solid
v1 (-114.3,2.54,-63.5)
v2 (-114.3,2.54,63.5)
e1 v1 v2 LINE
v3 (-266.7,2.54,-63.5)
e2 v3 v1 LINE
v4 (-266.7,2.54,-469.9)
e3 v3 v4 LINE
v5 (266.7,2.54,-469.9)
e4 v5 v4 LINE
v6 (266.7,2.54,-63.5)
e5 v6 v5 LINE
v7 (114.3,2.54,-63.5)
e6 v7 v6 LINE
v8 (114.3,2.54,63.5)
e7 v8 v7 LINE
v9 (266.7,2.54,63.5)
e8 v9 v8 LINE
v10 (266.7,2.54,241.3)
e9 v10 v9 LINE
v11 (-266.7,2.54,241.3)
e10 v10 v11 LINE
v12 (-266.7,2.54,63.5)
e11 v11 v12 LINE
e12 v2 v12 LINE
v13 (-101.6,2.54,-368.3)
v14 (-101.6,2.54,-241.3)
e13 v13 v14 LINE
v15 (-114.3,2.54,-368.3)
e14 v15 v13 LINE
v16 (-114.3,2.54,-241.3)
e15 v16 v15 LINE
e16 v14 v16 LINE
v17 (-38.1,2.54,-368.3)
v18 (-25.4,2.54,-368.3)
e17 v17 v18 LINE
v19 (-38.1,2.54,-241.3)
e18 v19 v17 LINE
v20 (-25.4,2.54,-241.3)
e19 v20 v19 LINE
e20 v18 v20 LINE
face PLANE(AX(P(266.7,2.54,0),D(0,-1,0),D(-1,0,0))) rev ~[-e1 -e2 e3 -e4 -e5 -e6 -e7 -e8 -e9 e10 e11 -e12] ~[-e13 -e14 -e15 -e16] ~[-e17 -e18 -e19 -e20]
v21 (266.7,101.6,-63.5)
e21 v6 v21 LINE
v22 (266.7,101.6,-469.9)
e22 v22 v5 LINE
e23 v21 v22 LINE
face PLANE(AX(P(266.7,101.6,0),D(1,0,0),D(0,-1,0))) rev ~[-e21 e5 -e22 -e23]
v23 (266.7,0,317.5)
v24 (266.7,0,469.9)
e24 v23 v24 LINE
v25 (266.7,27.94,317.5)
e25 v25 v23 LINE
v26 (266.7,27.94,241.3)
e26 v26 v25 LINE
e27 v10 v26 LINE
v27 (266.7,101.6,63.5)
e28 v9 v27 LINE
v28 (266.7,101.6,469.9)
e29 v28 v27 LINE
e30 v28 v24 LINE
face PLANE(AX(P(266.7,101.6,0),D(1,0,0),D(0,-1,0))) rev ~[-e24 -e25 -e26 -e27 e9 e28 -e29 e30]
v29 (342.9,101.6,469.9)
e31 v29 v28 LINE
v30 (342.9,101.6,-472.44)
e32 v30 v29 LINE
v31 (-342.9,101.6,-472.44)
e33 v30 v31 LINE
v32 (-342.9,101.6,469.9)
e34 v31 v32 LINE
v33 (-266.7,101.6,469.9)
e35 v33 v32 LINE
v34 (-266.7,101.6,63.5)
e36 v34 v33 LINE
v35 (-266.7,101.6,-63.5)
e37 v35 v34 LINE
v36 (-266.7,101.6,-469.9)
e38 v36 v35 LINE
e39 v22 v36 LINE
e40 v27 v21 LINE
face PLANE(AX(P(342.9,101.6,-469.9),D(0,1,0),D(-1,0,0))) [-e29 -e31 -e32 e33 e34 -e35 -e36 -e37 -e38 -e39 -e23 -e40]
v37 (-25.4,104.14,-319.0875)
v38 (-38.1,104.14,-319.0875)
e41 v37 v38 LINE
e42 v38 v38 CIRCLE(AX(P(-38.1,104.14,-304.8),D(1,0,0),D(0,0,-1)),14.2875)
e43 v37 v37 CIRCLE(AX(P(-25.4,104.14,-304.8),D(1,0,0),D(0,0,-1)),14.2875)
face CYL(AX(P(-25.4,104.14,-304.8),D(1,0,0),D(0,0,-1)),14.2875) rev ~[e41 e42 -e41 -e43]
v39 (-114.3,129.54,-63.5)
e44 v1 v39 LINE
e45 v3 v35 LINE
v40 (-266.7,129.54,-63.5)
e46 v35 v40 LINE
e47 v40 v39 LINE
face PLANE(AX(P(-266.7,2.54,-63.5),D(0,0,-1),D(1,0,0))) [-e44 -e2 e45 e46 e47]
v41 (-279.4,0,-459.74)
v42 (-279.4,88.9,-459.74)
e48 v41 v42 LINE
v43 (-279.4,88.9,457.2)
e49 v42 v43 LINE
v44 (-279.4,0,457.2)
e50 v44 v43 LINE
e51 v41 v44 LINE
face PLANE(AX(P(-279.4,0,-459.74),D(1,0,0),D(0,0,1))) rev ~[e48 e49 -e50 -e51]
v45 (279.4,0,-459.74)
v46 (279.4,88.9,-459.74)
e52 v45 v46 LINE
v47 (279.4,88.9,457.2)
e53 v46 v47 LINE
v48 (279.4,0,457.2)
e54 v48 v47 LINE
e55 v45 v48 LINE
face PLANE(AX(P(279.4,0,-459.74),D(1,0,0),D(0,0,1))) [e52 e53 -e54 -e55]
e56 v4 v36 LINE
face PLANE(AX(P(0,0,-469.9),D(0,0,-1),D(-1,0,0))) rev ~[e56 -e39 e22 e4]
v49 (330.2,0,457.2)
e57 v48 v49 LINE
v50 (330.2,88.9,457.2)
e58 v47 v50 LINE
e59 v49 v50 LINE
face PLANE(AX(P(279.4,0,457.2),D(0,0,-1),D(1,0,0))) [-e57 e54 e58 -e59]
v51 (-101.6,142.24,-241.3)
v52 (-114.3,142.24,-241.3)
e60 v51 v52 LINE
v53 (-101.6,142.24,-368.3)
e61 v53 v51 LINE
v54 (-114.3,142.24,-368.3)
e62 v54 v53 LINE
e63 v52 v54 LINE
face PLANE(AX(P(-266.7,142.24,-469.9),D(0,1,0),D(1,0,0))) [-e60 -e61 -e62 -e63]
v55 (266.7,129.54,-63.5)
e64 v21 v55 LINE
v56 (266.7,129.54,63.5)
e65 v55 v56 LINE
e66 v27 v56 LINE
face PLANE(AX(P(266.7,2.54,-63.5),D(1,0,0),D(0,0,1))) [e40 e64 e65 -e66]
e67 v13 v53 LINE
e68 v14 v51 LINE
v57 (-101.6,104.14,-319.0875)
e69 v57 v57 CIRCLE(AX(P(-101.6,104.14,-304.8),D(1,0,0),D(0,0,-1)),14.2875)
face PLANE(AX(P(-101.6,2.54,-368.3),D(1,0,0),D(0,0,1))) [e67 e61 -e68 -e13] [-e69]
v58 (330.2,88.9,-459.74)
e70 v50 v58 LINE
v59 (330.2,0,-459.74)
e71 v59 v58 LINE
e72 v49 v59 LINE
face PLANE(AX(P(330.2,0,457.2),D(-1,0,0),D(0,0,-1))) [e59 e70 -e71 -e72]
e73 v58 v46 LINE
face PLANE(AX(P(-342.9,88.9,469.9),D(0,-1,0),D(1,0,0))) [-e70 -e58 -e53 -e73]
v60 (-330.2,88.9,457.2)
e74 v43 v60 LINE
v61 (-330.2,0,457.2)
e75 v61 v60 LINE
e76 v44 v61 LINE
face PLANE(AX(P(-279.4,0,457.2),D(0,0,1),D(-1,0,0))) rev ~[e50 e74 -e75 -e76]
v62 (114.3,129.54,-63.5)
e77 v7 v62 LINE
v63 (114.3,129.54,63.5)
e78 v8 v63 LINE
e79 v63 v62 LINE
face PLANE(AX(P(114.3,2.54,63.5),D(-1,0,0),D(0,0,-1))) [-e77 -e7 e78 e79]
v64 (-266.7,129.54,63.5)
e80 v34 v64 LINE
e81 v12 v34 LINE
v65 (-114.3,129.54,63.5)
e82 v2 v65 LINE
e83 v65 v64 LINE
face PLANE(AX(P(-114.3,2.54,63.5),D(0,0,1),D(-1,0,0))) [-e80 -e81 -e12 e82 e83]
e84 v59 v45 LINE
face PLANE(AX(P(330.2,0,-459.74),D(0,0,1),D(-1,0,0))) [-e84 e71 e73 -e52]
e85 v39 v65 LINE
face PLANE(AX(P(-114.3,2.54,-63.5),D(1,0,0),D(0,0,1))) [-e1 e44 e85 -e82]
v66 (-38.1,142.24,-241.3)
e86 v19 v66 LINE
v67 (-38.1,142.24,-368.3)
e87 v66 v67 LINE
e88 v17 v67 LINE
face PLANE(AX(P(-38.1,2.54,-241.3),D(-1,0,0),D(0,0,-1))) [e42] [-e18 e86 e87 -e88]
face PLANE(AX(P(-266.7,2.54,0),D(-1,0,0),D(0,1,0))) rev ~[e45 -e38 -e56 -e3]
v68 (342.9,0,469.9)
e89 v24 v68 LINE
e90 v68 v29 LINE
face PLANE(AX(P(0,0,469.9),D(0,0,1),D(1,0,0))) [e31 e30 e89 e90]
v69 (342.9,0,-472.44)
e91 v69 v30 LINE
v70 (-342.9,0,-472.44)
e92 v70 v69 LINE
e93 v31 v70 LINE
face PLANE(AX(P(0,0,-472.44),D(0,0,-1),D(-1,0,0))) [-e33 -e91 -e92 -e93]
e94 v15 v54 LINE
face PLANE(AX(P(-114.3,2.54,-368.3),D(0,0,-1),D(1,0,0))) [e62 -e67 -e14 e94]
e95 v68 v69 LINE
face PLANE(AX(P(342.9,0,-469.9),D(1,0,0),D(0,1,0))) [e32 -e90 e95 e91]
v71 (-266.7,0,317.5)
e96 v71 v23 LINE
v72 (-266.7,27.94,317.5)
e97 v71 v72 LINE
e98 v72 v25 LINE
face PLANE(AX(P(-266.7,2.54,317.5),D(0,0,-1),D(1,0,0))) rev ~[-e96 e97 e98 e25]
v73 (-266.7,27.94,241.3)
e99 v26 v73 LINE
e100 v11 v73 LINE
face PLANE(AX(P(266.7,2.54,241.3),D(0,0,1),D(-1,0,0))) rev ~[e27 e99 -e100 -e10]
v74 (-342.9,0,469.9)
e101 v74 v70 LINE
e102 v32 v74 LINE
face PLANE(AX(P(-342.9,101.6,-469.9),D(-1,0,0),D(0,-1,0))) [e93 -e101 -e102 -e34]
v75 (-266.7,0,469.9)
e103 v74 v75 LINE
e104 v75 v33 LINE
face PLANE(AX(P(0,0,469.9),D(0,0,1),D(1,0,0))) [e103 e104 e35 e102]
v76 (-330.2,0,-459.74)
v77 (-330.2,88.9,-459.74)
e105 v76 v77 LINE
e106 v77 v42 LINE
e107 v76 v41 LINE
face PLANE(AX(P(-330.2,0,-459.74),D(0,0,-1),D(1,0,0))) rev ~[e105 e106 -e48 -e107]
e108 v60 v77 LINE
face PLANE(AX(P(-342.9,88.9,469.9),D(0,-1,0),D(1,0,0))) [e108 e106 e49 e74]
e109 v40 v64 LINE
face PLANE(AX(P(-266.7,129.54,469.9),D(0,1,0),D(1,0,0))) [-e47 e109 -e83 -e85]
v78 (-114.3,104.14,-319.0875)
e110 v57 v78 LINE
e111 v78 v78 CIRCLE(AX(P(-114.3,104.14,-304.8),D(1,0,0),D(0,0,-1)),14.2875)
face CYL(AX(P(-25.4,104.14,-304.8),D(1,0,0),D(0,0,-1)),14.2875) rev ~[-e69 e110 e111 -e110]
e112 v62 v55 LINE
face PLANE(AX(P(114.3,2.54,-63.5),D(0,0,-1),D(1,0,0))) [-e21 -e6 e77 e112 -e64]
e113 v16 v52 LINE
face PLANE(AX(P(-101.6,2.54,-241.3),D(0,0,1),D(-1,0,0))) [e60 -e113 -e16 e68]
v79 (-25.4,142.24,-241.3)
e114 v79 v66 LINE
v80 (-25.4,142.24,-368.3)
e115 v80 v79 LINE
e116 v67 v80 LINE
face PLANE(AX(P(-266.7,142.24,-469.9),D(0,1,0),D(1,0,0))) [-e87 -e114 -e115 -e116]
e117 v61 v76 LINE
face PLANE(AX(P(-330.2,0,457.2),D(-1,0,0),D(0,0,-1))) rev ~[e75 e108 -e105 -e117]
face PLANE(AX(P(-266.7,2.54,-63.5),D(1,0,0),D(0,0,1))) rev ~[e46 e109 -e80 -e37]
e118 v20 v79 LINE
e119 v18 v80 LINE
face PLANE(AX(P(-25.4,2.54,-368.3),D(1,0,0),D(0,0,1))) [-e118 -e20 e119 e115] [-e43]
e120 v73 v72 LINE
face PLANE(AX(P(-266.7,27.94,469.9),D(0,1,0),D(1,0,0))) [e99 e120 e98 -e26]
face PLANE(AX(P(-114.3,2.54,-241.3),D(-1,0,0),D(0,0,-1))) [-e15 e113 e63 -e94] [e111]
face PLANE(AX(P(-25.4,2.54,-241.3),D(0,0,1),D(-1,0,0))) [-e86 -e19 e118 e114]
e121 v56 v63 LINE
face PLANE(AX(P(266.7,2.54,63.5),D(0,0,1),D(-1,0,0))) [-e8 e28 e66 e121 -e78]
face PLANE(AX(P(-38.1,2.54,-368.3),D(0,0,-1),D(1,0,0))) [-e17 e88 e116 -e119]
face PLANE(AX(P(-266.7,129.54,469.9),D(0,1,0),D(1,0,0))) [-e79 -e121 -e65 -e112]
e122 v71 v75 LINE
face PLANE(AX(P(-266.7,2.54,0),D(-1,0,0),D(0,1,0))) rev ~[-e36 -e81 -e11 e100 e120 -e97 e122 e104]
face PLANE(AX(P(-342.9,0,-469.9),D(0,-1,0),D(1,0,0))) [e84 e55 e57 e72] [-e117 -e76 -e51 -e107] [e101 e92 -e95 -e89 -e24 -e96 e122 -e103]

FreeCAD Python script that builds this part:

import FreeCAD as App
import Part
import Sketcher
Q = App.Units.Quantity


def add_polygon(sketch, points):
    """Adds a closed chain of lines whose ends are joined by coincident constraints."""
    first, n = sketch.GeometryCount, len(points)
    for a, b in zip(points, points[1:] + points[:1]):
        sketch.addGeometry(Part.LineSegment(App.Vector(*a, 0), App.Vector(*b, 0)), False)
    for i in range(n):
        sketch.addConstraint(Sketcher.Constraint("Coincident", first + i, 2, first + (i + 1) % n, 1))

doc = App.newDocument("Part")
body = doc.addObject("PartDesign::Body", "Body")

sketch1 = body.newObject("Sketcher::SketchObject", "Sketch")
sketch1.AttachmentSupport = (doc.getObject("XY_Plane"), [""])
sketch1.MapMode = "FlatFace"
add_polygon(sketch1, [(-267, 3), (-267, 102), (-343, 102), (-343, 0), (343, 0), (343, 102), (267, 102), (267, 3)])
sketch1.addConstraint(Sketcher.Constraint("Vertical", 0))
sketch1.addConstraint(Sketcher.Constraint("Horizontal", 1))
sketch1.addConstraint(Sketcher.Constraint("Vertical", 2))
sketch1.addConstraint(Sketcher.Constraint("Horizontal", 3))
sketch1.addConstraint(Sketcher.Constraint("Vertical", 4))
sketch1.addConstraint(Sketcher.Constraint("Horizontal", 5))
sketch1.addConstraint(Sketcher.Constraint("Vertical", 6))
sketch1.addConstraint(Sketcher.Constraint("Horizontal", 7))
sketch1.addConstraint(Sketcher.Constraint("Symmetric", 2, 2, 3, 2, -1, 1))
sketch1.addConstraint(Sketcher.Constraint("Symmetric", 0, 2, 5, 2, -2))
sketch1.addConstraint(Sketcher.Constraint("DistanceX", 1, 2, 1, 1, Q("3 in")))
sketch1.addConstraint(Sketcher.Constraint("DistanceX", 3, 1, 3, 2, Q("27 in")))
sketch1.addConstraint(Sketcher.Constraint("DistanceY", 2, 2, 2, 1, Q("4 in")))
sketch1.addConstraint(Sketcher.Constraint("DistanceY", -1, 1, 6, 2, Q("0.1 in")))
pad1 = body.newObject("PartDesign::Pad", "Pad")
pad1.Profile = sketch1
pad1.Length = Q("37 in")
pad1.Midplane = True

sketch2 = body.newObject("Sketcher::SketchObject", "Sketch001")
sketch2.AttachmentSupport = (doc.getObject("XY_Plane"), [""])
sketch2.MapMode = "FlatFace"
sketch2.AttachmentOffset = App.Placement(App.Vector(0, 0, -18.5 * 25.4), App.Rotation())
add_polygon(sketch2, [(343, 102), (343, 0), (-343, 0), (-343, 102)])
sketch2.addConstraint(Sketcher.Constraint("Vertical", 0))
sketch2.addConstraint(Sketcher.Constraint("Horizontal", 1))
sketch2.addConstraint(Sketcher.Constraint("Vertical", 2))
sketch2.addConstraint(Sketcher.Constraint("Horizontal", 3))
sketch2.addConstraint(Sketcher.Constraint("Symmetric", 0, 2, 1, 2, -1, 1))
sketch2.addConstraint(Sketcher.Constraint("DistanceX", 1, 2, 1, 1, Q("27 in")))
sketch2.addConstraint(Sketcher.Constraint("DistanceY", 0, 2, 0, 1, Q("4 in")))
pad2 = body.newObject("PartDesign::Pad", "Pad001")
pad2.Profile = sketch2
pad2.Length = Q("0.1 in")
pad2.Reversed = True

sketch3 = body.newObject("Sketcher::SketchObject", "Sketch002")
sketch3.AttachmentSupport = (doc.getObject("XZ_Plane"), [""])
sketch3.MapMode = "FlatFace"
sketch3.AttachmentOffset = App.Placement(App.Vector(0, 0, -0.1 * 25.4), App.Rotation())
add_polygon(sketch3, [(-267, 318), (-267, 470), (267, 470), (267, 318)])
sketch3.addConstraint(Sketcher.Constraint("Vertical", 0))
sketch3.addConstraint(Sketcher.Constraint("Horizontal", 1))
sketch3.addConstraint(Sketcher.Constraint("Vertical", 2))
sketch3.addConstraint(Sketcher.Constraint("Horizontal", 3))
sketch3.addConstraint(Sketcher.Constraint("DistanceY", 0, 1, 0, 2, Q("6 in")))
sketch3.addConstraint(Sketcher.Constraint("DistanceX", 1, 1, 1, 2, Q("21 in")))
sketch3.addConstraint(Sketcher.Constraint("DistanceX", 0, 2, -1, 1, Q("10.5 in")))
sketch3.addConstraint(Sketcher.Constraint("DistanceY", -1, 1, 0, 2, Q("18.5 in")))
pocket1 = body.newObject("PartDesign::Pocket", "Pocket")
pocket1.Profile = sketch3
pocket1.Type = "UpToFirst"
pocket1.Reversed = True

sketch4 = body.newObject("Sketcher::SketchObject", "Sketch003")
sketch4.AttachmentSupport = (doc.getObject("XZ_Plane"), [""])
sketch4.MapMode = "FlatFace"
sketch4.AttachmentOffset = App.Placement(App.Vector(0, 0, -0.1 * 25.4), App.Rotation())
add_polygon(sketch4, [(-267, 241), (-267, 318), (267, 318), (267, 241)])
sketch4.addConstraint(Sketcher.Constraint("Vertical", 0))
sketch4.addConstraint(Sketcher.Constraint("Horizontal", 1))
sketch4.addConstraint(Sketcher.Constraint("Vertical", 2))
sketch4.addConstraint(Sketcher.Constraint("Horizontal", 3))
sketch4.addConstraint(Sketcher.Constraint("DistanceY", 0, 1, 0, 2, Q("3 in")))
sketch4.addConstraint(Sketcher.Constraint("DistanceX", 1, 1, 1, 2, Q("21 in")))
sketch4.addConstraint(Sketcher.Constraint("DistanceX", 0, 2, -1, 1, Q("10.5 in")))
sketch4.addConstraint(Sketcher.Constraint("DistanceY", -1, 1, 0, 2, Q("12.5 in")))
pad3 = body.newObject("PartDesign::Pad", "Pad002")
pad3.Profile = sketch4
pad3.Length = Q("1 in")
pad3.Reversed = True

sketch5 = body.newObject("Sketcher::SketchObject", "Sketch004")
sketch5.AttachmentSupport = (doc.getObject("XZ_Plane"), [""])
sketch5.MapMode = "FlatFace"
sketch5.AttachmentOffset = App.Placement(App.Vector(0, 0, -0.1 * 25.4), App.Rotation())
add_polygon(sketch5, [(-267, -64), (-267, 64), (-114, 64), (-114, -64)])
add_polygon(sketch5, [(114, 64), (267, 64), (267, -64), (114, -64)])
sketch5.addConstraint(Sketcher.Constraint("Vertical", 0))
sketch5.addConstraint(Sketcher.Constraint("Horizontal", 1))
sketch5.addConstraint(Sketcher.Constraint("Vertical", 2))
sketch5.addConstraint(Sketcher.Constraint("Horizontal", 3))
sketch5.addConstraint(Sketcher.Constraint("Horizontal", 4))
sketch5.addConstraint(Sketcher.Constraint("Vertical", 5))
sketch5.addConstraint(Sketcher.Constraint("Horizontal", 6))
sketch5.addConstraint(Sketcher.Constraint("Vertical", 7))
sketch5.addConstraint(Sketcher.Constraint("Symmetric", 3, 2, 4, 2, -1, 1))
sketch5.addConstraint(Sketcher.Constraint("Symmetric", 1, 2, 6, 2, -1, 1))
sketch5.addConstraint(Sketcher.Constraint("Horizontal", 1, 2, 4, 2))
sketch5.addConstraint(Sketcher.Constraint("DistanceX", 1, 1, 1, 2, Q("6 in")))
sketch5.addConstraint(Sketcher.Constraint("DistanceY", 0, 1, 0, 2, Q("5 in")))
sketch5.addConstraint(Sketcher.Constraint("DistanceX", 1, 2, 4, 2, Q("15 in")))
pad4 = body.newObject("PartDesign::Pad", "Pad003")
pad4.Profile = sketch5
pad4.Length = Q("5 in")
pad4.Reversed = True

sketch6 = body.newObject("Sketcher::SketchObject", "Sketch005")
sketch6.AttachmentSupport = (doc.getObject("XZ_Plane"), [""])
sketch6.MapMode = "FlatFace"
add_polygon(sketch6, [(-330, 457), (-330, -460), (-279, -460), (-279, 457)])
add_polygon(sketch6, [(279, -460), (330, -460), (330, 457), (279, 457)])
sketch6.addConstraint(Sketcher.Constraint("Vertical", 0))
sketch6.addConstraint(Sketcher.Constraint("Horizontal", 1))
sketch6.addConstraint(Sketcher.Constraint("Vertical", 2))
sketch6.addConstraint(Sketcher.Constraint("Horizontal", 3))
sketch6.addConstraint(Sketcher.Constraint("Horizontal", 4))
sketch6.addConstraint(Sketcher.Constraint("Vertical", 5))
sketch6.addConstraint(Sketcher.Constraint("Horizontal", 6))
sketch6.addConstraint(Sketcher.Constraint("Vertical", 7))
sketch6.addConstraint(Sketcher.Constraint("Symmetric", 0, 2, 4, 2, -2))
sketch6.addConstraint(Sketcher.Constraint("Symmetric", 2, 2, 6, 2, -2))
sketch6.addConstraint(Sketcher.Constraint("DistanceX", 1, 1, 1, 2, Q("2 in")))
sketch6.addConstraint(Sketcher.Constraint("DistanceY", 0, 2, 0, 1, Q("36.1 in")))
sketch6.addConstraint(Sketcher.Constraint("DistanceX", 0, 2, -1, 1, Q("13 in")))
sketch6.addConstraint(Sketcher.Constraint("DistanceY", -1, 1, 2, 2, Q("18 in")))
pocket2 = body.newObject("PartDesign::Pocket", "Pocket001")
pocket2.Profile = sketch6
pocket2.Length = Q("3.5 in")

sketch7 = body.newObject("Sketcher::SketchObject", "Sketch006")
sketch7.AttachmentSupport = (doc.getObject("XZ_Plane"), [""])
sketch7.MapMode = "FlatFace"
sketch7.AttachmentOffset = App.Placement(App.Vector(0, 0, -0.1 * 25.4), App.Rotation())
add_polygon(sketch7, [(-102, -368), (-114, -368), (-114, -241), (-102, -241)])
add_polygon(sketch7, [(-25, -368), (-38, -368), (-38, -241), (-25, -241)])
sketch7.addConstraint(Sketcher.Constraint("Horizontal", 0))
sketch7.addConstraint(Sketcher.Constraint("Vertical", 1))
sketch7.addConstraint(Sketcher.Constraint("Horizontal", 2))
sketch7.addConstraint(Sketcher.Constraint("Vertical", 3))
sketch7.addConstraint(Sketcher.Constraint("Horizontal", 4))
sketch7.addConstraint(Sketcher.Constraint("Vertical", 5))
sketch7.addConstraint(Sketcher.Constraint("Horizontal", 6))
sketch7.addConstraint(Sketcher.Constraint("Vertical", 7))
sketch7.addConstraint(Sketcher.Constraint("Horizontal", 3, 2, 4, 2))
sketch7.addConstraint(Sketcher.Constraint("Horizontal", 2, 2, 5, 2))
sketch7.addConstraint(Sketcher.Constraint("Equal", 2, 4))
sketch7.addConstraint(Sketcher.Constraint("DistanceY", 1, 1, 1, 2, Q("5 in")))
sketch7.addConstraint(Sketcher.Constraint("DistanceX", 0, 2, 0, 1, Q("0.5 in")))
sketch7.addConstraint(Sketcher.Constraint("DistanceX", 2, 2, -1, 1, Q("4 in")))
sketch7.addConstraint(Sketcher.Constraint("DistanceX", 3, 2, 4, 2, Q("2.5 in")))
sketch7.addConstraint(Sketcher.Constraint("DistanceY", 0, 2, -1, 1, Q("14.5 in")))
pad5 = body.newObject("PartDesign::Pad", "Pad004")
pad5.Profile = sketch7
pad5.Length = Q("5.5 in")
pad5.Reversed = True

sketch8 = body.newObject("Sketcher::SketchObject", "Sketch007")
sketch8.AttachmentSupport = (doc.getObject("YZ_Plane"), [""])
sketch8.MapMode = "FlatFace"
sketch8.AttachmentOffset = App.Placement(App.Vector(0, 0, -1 * 25.4), App.Rotation())
sketch8.addGeometry(Part.Circle(App.Vector(104, -305, 0), App.Vector(0, 0, 1), 14), False)
sketch8.addConstraint(Sketcher.Constraint("Diameter", 0, Q("1.125 in")))
sketch8.addConstraint(Sketcher.Constraint("DistanceY", 0, 3, -1, 1, Q("12 in")))
sketch8.addConstraint(Sketcher.Constraint("DistanceX", -1, 1, 0, 3, Q("4.1 in")))
pocket3 = body.newObject("PartDesign::Pocket", "Pocket002")
pocket3.Profile = sketch8
pocket3.Length = Q("3.5 in")

doc.recompute()
